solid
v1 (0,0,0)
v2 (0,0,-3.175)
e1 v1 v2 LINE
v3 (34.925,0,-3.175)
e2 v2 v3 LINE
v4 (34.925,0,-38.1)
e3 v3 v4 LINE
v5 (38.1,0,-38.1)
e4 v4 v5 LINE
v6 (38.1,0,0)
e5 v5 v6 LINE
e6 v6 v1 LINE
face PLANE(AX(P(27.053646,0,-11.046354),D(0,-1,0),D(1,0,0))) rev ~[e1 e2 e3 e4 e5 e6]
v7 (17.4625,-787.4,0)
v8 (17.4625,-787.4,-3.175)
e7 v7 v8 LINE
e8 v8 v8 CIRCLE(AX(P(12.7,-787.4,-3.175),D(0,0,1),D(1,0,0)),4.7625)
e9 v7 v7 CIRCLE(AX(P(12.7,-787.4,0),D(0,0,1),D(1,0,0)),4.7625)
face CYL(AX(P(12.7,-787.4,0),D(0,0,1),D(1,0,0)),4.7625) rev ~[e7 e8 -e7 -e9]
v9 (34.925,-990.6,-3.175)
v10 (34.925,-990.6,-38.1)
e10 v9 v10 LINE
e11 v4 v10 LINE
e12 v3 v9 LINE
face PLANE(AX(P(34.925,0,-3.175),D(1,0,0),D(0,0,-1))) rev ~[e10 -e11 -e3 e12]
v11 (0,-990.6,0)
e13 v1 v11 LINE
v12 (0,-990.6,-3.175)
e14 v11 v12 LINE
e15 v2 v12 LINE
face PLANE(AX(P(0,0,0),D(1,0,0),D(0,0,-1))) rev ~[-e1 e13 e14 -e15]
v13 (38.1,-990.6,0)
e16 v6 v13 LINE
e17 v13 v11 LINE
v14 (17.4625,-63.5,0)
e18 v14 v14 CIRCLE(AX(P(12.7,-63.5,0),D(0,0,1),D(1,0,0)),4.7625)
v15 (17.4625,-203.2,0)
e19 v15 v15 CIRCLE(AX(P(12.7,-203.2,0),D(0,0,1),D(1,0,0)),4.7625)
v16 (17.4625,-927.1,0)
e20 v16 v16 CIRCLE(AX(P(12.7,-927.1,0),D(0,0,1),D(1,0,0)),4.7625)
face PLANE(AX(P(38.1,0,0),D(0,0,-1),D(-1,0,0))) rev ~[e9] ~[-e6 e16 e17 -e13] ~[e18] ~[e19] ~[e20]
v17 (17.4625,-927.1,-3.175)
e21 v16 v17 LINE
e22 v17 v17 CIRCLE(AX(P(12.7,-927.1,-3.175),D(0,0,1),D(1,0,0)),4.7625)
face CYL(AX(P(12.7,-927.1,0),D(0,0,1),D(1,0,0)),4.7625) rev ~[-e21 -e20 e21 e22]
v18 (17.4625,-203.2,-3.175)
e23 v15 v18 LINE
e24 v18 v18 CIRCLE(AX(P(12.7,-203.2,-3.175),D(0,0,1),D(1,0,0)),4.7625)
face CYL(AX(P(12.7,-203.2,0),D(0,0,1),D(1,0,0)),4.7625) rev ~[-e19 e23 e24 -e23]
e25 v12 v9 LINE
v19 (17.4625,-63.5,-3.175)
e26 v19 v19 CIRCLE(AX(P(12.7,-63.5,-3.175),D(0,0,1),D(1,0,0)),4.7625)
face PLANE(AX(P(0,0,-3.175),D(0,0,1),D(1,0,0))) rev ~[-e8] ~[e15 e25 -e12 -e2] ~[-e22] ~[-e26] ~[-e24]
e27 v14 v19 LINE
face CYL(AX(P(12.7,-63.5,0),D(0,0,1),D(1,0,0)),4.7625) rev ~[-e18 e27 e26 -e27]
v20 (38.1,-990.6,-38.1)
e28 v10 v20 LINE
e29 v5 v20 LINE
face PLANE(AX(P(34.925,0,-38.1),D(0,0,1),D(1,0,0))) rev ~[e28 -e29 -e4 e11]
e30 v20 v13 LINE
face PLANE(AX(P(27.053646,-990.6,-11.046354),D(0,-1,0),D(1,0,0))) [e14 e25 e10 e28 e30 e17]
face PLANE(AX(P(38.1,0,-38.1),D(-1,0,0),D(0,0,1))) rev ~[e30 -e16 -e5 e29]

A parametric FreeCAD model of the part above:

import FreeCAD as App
import Part
import Sketcher
from FreeCAD import Vector
Q = App.Units.Quantity

doc = App.newDocument("Part")
body = doc.addObject("PartDesign::Body", "Body")

sketch1 = body.newObject("Sketcher::SketchObject", "Sketch")
sketch1.AttachmentSupport = (doc.getObject("XZ_Plane"), [""])
sketch1.MapMode = "FlatFace"
sketch1.addGeometry([
    Part.LineSegment(Vector(38.1, 0, 0), Vector(0, 0, 0)),
    Part.LineSegment(Vector(0, 0, 0), Vector(0, -3.175, 0)),
    Part.LineSegment(Vector(0, -3.175, 0), Vector(34.925, -3.175, 0)),
    Part.LineSegment(Vector(34.925, -3.175, 0), Vector(34.925, -38.1, 0)),
    Part.LineSegment(Vector(34.925, -38.1, 0), Vector(38.1, -38.1, 0)),
    Part.LineSegment(Vector(38.1, -38.1, 0), Vector(38.1, 0, 0)),
], False)
sketch1.addConstraint([
    Sketcher.Constraint("Coincident", 0, 2, 1, 1),
    Sketcher.Constraint("Coincident", 1, 2, 2, 1),
    Sketcher.Constraint("Coincident", 2, 2, 3, 1),
    Sketcher.Constraint("Coincident", 3, 2, 4, 1),
    Sketcher.Constraint("Coincident", 4, 2, 5, 1),
    Sketcher.Constraint("Coincident", 5, 2, 0, 1),
    Sketcher.Constraint("Horizontal", 0),
    Sketcher.Constraint("Vertical", 1),
    Sketcher.Constraint("Horizontal", 2),
    Sketcher.Constraint("Vertical", 3),
    Sketcher.Constraint("Horizontal", 4),
    Sketcher.Constraint("Vertical", 5),
    Sketcher.Constraint("Coincident", 0, 2, -1, 1),
    Sketcher.Constraint("Equal", 4, 1),
    Sketcher.Constraint("Equal", 2, 3),
    Sketcher.Constraint("DistanceX", 0, 2, 0, 1, Q("1.5 in")),
    Sketcher.Constraint("DistanceX", 2, 1, 2, 2, Q("1.375 in")),
])
pad1 = body.newObject("PartDesign::Pad", "Pad")
pad1.Profile = sketch1
pad1.Length = Q("39 in")

sketch2 = body.newObject("Sketcher::SketchObject", "Sketch001")
sketch2.AttachmentSupport = (doc.getObject("XY_Plane"), [""])
sketch2.MapMode = "FlatFace"
sketch2.addGeometry([
    Part.Circle(Vector(12.7, -927.1, 0), Vector(0, 0, 1), 4.7625),
    Part.Circle(Vector(12.7, -787.4, 0), Vector(0, 0, 1), 4.7625),
    Part.Circle(Vector(12.7, -203.2, 0), Vector(0, 0, 1), 4.7625),
    Part.Circle(Vector(12.7, -63.5, 0), Vector(0, 0, 1), 4.7625),
], False)
sketch2.addConstraint([
    Sketcher.Constraint("Equal", 0, 1),
    Sketcher.Constraint("Equal", 1, 2),
    Sketcher.Constraint("Equal", 2, 3),
    Sketcher.Constraint("Vertical", 0, 3, 1, 3),
    Sketcher.Constraint("Vertical", 1, 3, 2, 3),
    Sketcher.Constraint("Vertical", 2, 3, 3, 3),
    Sketcher.Constraint("Diameter", 0, Q("0.375 in")),
    Sketcher.Constraint("DistanceY", 1, 3, -1, 1, Q("31 in")),
    Sketcher.Constraint("DistanceY", 2, 3, -1, 1, Q("8 in")),
    Sketcher.Constraint("DistanceY", 0, 3, 3, 3, Q("34 in")),
    Sketcher.Constraint("DistanceX", -1, 1, 0, 3, Q("0.5 in")),
    Sketcher.Constraint("DistanceY", 0, 3, -1, 1, Q("36.5 in")),
])
pocket1 = body.newObject("PartDesign::Pocket", "Pocket")
pocket1.Profile = sketch2
pocket1.Type = "ThroughAll"

doc.recompute()
